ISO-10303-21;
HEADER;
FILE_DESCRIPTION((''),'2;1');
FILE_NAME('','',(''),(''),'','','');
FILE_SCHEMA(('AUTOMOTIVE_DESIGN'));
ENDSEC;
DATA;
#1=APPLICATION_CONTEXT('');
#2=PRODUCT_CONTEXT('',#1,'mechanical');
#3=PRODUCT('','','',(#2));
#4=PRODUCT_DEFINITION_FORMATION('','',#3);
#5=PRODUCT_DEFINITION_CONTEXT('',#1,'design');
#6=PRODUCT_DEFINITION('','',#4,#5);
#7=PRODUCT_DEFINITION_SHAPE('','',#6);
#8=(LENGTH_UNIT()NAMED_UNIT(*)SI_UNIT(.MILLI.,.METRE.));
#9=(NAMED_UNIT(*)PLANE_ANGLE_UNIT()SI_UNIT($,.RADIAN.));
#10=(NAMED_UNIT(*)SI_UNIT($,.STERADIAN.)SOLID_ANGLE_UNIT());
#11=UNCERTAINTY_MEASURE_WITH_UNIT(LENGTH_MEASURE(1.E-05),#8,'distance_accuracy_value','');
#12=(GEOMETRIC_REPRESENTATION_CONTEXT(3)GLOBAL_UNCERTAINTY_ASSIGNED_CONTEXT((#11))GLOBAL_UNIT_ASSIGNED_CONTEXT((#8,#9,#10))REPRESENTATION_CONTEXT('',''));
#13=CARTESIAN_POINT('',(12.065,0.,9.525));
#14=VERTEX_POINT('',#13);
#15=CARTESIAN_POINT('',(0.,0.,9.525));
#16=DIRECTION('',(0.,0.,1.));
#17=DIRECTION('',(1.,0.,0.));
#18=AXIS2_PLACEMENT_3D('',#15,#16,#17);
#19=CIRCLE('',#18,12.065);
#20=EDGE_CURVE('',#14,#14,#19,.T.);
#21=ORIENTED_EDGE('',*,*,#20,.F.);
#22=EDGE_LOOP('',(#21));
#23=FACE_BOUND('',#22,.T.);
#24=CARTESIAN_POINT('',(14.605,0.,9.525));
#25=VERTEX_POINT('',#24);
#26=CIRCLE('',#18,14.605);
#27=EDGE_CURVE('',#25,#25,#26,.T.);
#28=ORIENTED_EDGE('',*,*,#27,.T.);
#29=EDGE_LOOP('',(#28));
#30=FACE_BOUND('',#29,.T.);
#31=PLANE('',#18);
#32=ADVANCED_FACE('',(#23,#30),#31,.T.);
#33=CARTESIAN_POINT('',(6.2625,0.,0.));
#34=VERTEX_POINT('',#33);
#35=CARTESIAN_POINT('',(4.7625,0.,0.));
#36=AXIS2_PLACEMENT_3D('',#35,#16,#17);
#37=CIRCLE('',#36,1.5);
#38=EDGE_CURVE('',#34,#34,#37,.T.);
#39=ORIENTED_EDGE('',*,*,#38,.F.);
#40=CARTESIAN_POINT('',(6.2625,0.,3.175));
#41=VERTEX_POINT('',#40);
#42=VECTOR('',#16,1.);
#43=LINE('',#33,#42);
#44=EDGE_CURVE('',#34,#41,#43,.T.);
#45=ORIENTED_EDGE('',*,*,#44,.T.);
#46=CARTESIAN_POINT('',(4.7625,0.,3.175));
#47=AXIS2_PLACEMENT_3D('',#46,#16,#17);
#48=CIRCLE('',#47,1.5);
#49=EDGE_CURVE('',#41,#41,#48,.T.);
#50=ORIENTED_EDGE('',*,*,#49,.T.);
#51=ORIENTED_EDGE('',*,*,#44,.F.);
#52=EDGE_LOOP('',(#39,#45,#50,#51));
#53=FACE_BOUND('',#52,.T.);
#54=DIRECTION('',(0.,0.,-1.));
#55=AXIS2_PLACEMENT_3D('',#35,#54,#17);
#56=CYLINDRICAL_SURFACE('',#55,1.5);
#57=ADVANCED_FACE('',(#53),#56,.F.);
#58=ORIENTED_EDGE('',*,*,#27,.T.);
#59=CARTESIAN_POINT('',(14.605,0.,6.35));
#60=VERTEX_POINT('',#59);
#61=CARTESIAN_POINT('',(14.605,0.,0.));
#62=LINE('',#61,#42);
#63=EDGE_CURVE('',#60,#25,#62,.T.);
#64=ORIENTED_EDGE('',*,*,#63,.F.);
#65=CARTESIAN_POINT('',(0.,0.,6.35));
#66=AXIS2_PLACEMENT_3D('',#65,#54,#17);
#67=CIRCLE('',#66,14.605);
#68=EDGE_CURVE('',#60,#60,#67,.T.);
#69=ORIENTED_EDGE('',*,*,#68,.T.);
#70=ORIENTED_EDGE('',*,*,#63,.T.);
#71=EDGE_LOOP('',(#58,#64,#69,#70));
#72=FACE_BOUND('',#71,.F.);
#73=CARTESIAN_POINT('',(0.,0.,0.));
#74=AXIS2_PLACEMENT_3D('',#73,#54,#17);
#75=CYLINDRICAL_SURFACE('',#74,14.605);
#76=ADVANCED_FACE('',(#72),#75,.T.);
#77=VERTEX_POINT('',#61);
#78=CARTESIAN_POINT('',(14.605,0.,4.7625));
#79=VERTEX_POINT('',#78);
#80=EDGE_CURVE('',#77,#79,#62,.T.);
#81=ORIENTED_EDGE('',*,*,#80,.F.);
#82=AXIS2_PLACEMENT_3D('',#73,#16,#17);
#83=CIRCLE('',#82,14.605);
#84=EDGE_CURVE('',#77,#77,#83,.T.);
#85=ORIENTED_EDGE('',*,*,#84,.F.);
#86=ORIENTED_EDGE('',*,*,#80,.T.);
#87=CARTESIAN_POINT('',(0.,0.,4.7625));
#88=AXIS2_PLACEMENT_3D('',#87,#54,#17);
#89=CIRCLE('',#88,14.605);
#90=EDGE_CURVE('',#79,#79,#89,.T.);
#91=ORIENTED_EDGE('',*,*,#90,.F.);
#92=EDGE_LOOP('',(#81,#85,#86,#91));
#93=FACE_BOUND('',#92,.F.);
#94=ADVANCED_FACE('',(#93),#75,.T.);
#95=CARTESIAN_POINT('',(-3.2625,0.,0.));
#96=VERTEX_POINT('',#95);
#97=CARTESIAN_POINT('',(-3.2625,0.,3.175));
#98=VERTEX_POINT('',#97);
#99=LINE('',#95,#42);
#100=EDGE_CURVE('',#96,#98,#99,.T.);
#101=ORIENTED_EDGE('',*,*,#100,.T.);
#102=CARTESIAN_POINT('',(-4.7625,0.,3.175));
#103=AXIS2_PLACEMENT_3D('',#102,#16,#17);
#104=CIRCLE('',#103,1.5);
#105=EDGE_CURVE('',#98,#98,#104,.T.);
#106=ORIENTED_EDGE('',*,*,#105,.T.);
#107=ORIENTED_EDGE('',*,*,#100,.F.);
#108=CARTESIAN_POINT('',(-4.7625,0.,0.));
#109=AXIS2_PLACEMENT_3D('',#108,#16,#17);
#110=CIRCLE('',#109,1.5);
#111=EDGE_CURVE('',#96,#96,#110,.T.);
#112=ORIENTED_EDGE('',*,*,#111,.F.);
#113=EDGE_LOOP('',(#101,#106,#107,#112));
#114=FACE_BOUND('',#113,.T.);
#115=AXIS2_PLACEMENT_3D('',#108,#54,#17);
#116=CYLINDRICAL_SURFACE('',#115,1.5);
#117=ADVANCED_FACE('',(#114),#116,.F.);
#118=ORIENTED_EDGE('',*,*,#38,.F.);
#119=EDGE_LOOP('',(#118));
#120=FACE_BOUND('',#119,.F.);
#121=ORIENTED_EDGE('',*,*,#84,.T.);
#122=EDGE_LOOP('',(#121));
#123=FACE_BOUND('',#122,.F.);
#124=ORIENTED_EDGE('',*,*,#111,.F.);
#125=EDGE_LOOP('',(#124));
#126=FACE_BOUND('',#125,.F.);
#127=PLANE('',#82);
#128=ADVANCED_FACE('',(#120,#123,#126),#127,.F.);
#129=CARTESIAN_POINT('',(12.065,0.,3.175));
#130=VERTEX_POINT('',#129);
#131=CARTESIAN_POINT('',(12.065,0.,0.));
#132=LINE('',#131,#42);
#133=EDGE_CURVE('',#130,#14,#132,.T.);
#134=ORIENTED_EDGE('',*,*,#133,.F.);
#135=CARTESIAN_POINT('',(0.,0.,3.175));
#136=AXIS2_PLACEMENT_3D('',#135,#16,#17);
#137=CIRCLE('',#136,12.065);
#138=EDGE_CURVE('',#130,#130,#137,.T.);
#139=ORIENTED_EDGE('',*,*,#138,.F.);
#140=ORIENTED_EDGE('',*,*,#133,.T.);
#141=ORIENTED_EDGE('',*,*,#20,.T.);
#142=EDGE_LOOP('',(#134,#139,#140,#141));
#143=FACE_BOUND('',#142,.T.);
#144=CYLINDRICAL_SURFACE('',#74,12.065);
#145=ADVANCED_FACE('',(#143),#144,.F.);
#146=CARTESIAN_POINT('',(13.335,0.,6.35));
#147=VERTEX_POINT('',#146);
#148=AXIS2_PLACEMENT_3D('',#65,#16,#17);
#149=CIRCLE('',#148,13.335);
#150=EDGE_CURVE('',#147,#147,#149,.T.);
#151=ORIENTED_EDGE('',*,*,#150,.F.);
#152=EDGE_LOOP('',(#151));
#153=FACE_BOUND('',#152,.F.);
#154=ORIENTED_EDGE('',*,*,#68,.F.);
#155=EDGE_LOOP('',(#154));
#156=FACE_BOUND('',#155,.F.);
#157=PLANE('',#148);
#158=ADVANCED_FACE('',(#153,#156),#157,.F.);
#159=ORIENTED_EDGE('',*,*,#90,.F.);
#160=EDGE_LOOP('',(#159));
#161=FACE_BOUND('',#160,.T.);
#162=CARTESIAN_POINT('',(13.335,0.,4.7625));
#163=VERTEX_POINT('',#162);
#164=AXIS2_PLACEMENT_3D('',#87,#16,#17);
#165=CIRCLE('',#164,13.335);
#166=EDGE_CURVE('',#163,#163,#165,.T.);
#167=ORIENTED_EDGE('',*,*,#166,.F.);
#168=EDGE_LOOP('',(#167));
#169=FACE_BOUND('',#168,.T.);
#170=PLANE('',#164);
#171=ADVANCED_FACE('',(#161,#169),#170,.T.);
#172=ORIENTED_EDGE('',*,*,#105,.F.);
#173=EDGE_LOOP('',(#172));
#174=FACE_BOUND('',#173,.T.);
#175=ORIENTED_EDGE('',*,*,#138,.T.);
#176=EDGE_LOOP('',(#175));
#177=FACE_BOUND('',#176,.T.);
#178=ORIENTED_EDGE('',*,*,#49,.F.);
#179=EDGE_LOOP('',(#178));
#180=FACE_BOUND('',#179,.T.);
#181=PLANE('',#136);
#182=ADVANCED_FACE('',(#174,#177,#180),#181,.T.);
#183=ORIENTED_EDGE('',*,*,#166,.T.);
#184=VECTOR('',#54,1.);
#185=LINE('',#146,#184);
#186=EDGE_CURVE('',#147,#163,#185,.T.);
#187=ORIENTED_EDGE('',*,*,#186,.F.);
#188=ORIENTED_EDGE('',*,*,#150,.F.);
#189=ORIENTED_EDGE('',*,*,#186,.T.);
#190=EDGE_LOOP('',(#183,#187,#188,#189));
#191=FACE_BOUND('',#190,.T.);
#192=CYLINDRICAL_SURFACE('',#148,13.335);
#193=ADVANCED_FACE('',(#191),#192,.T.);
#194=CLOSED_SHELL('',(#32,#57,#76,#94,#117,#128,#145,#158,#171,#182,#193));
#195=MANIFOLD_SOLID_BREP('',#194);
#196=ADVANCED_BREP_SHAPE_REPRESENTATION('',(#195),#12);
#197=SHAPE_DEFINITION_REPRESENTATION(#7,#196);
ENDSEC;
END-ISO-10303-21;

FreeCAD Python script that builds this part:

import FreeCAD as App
import Part
import Sketcher

V = App.Vector
Q = App.Units.Quantity

doc = App.newDocument("Part")
body = doc.addObject("PartDesign::Body", "Body")

# Sketch on XY plane
sketch1 = body.newObject("Sketcher::SketchObject", "Sketch")
sketch1.AttachmentSupport = (doc.getObject("XY_Plane"), [""])
sketch1.MapMode = "FlatFace"
sketch1.addGeometry([
    Part.Circle(V(0, 0, 0), V(0, 0, 1), 15),
    Part.Circle(V(0, 0, 0), V(0, 0, 1), 12),
], False)
sketch1.addConstraint([
    Sketcher.Constraint("Coincident", 0, 3, -1, 1),
    Sketcher.Constraint("Coincident", 1, 3, -1, 1),
    Sketcher.Constraint("Diameter", 0, Q("1.15 in")),
    Sketcher.Constraint("Diameter", 1, Q("0.95 in")),
])
pad1 = body.newObject("PartDesign::Pad", "Pad")
pad1.Profile = sketch1
pad1.Length = Q("0.375 in")

# Sketch on XY plane
sketch2 = body.newObject("Sketcher::SketchObject", "Sketch001")
sketch2.AttachmentSupport = (doc.getObject("XY_Plane"), [""])
sketch2.MapMode = "FlatFace"
sketch2.addGeometry([
    Part.Circle(V(0, 0, 0), V(0, 0, 1), 12.1),
    Part.Circle(V(-4.8, 0, 0), V(0, 0, 1), 1.5),
    Part.Circle(V(4.8, 0, 0), V(0, 0, 1), 1.5),
], False)
sketch2.addConstraint([
    Sketcher.Constraint("Coincident", 0, 3, -1, 1),
    Sketcher.Constraint("Equal", 1, 2),
    Sketcher.Constraint("Symmetric", 1, 3, 2, 3, -1, 1),
    Sketcher.Constraint("PointOnObject", 1, 3, -1),
    Sketcher.Constraint("Diameter", 0, Q("0.95 in")),
    Sketcher.Constraint("Diameter", 1, Q("3 mm")),
    Sketcher.Constraint("DistanceX", 1, 3, -1, 1, Q("0.1875 in")),
])
pad2 = body.newObject("PartDesign::Pad", "Pad001")
pad2.Profile = sketch2
pad2.Length = Q("0.125 in")

# Sketch on XY plane
sketch3 = body.newObject("Sketcher::SketchObject", "Sketch002")
sketch3.AttachmentSupport = (doc.getObject("XY_Plane"), [""])
sketch3.MapMode = "FlatFace"
sketch3.AttachmentOffset = App.Placement(V(0, 0, 0.25 * 25.4), App.Rotation())
sketch3.addGeometry([
    Part.Circle(V(0, 0, 0), V(0, 0, 1), 18),
    Part.Circle(V(0, 0, 0), V(0, 0, 1), 13),
], False)
sketch3.addConstraint([
    Sketcher.Constraint("Coincident", 0, 3, -1, 1),
    Sketcher.Constraint("Coincident", 1, 3, -1, 1),
    Sketcher.Constraint("Diameter", 1, Q("1.05 in")),
    Sketcher.Constraint("Diameter", 0, Q("36.758588 mm")),
])
pocket1 = body.newObject("PartDesign::Pocket", "Pocket")
pocket1.Profile = sketch3
pocket1.Length = Q("0.0625 in")

doc.recompute()
